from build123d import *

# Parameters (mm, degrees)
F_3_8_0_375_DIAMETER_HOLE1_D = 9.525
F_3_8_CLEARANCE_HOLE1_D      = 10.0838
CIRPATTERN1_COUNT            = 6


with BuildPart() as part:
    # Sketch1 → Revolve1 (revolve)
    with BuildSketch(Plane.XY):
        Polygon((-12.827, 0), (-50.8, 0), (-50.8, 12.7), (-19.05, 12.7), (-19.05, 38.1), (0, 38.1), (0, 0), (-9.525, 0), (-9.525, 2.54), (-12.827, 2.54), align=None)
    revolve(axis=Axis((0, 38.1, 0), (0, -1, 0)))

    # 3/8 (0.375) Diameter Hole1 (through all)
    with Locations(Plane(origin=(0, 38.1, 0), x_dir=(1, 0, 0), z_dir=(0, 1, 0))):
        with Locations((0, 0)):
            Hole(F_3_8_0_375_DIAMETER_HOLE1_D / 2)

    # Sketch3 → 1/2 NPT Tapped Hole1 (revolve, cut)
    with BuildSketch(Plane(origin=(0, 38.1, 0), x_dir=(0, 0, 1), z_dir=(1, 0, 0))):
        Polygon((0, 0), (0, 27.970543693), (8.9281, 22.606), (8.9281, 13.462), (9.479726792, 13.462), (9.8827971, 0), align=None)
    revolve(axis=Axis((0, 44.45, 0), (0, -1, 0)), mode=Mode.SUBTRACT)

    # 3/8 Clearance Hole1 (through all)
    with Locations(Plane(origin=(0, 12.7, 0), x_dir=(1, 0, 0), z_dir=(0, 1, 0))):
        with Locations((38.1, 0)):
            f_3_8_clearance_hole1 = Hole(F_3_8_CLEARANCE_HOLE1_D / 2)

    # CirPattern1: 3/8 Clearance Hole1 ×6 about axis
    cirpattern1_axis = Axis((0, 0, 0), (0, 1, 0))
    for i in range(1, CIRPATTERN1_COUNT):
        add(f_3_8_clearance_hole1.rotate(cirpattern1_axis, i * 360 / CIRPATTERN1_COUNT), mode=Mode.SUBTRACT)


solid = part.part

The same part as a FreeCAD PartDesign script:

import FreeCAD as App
import Part
import Sketcher

V = App.Vector
Q = App.Units.Quantity

doc = App.newDocument("Part")
params = doc.addObject("Spreadsheet::Sheet", "Params")
for row, (alias, value) in enumerate([
    ("sketch1_height", "1 in"),
    ("sketch1_height2", "0.1 in"),
    ("sketch1_height3", "1.5 in"),
    ("sketch1_width", "0.13 in"),
    ("sketch1_width2", "0.75 in"),
    ("revolution_angle", "360 deg"),
    ("sketch2_diameter", "0.375 in"),
    ("hole_diameter", "0.375 in"),
    ("sketch3_width", "0.36 in"),
    ("groove_angle", "360 deg"),
    ("sketch4_diameter", "0.397 in"),
    ("hole2_diameter", "0.397 in"),
], start=1):
    params.set(f"A{row}", alias)
    params.set(f"B{row}", "=" + value)
    params.setAlias(f"B{row}", alias)

body = doc.addObject("PartDesign::Body", "Body")

# Sketch on XY plane
sketch1 = doc.addObject("Sketcher::SketchObject", "Sketch")
body.addObject(sketch1)
sketch1.AttachmentSupport = (doc.XY_Plane, [""])
sketch1.MapMode = "FlatFace"
sketch1.addGeometry([
    Part.LineSegment(V(-50.8, 0, 0), V(-12.827, 0, 0)),  # 0
    Part.LineSegment(V(-12.827, 0, 0), V(-12.827, 2.54, 0)),  # 1
    Part.LineSegment(V(-12.827, 2.54, 0), V(-9.525, 2.54, 0)),  # 2
    Part.LineSegment(V(-9.525, 2.54, 0), V(-9.525, 0, 0)),  # 3
    Part.LineSegment(V(-9.525, 0, 0), V(0, 0, 0)),  # 4
    Part.LineSegment(V(0, 0, 0), V(0, 38.1, 0)),  # 5
    Part.LineSegment(V(0, 38.1, 0), V(-19.05, 38.1, 0)),  # 6
    Part.LineSegment(V(-19.05, 38.1, 0), V(-19.05, 12.7, 0)),  # 7
    Part.LineSegment(V(-19.05, 12.7, 0), V(-50.8, 12.7, 0)),  # 8
    Part.LineSegment(V(-50.8, 12.7, 0), V(-50.8, 0, 0)),  # 9
], False)
sketch1.addConstraint([
    Sketcher.Constraint("Coincident", 0, 2, 1, 1),
    Sketcher.Constraint("Coincident", 1, 2, 2, 1),
    Sketcher.Constraint("Coincident", 2, 2, 3, 1),
    Sketcher.Constraint("Coincident", 3, 2, 4, 1),
    Sketcher.Constraint("Coincident", 4, 2, 5, 1),
    Sketcher.Constraint("Coincident", 5, 2, 6, 1),
    Sketcher.Constraint("Coincident", 6, 2, 7, 1),
    Sketcher.Constraint("Coincident", 7, 2, 8, 1),
    Sketcher.Constraint("Coincident", 8, 2, 9, 1),
    Sketcher.Constraint("Coincident", 9, 2, 0, 1),
    Sketcher.Constraint("Horizontal", 0),
    Sketcher.Constraint("Vertical", 1),
    Sketcher.Constraint("Horizontal", 2),
    Sketcher.Constraint("Vertical", 3),
    Sketcher.Constraint("Horizontal", 4),
    Sketcher.Constraint("Vertical", 5),
    Sketcher.Constraint("Horizontal", 6),
    Sketcher.Constraint("Vertical", 7),
    Sketcher.Constraint("Horizontal", 8),
    Sketcher.Constraint("Vertical", 9),
    Sketcher.Constraint("Coincident", 4, 2, -1, 1),
    Sketcher.Constraint("PointOnObject", 0, 2, -1),
    Sketcher.Constraint("DistanceY", 7, 2, 7, 1, Q("1 in")),
    Sketcher.Constraint("DistanceY", 1, 1, 1, 2, Q("0.1 in")),
    Sketcher.Constraint("DistanceY", 5, 1, 5, 2, Q("1.5 in")),
    Sketcher.Constraint("DistanceX", 8, 2, -1, 1, Q("2 in")),
    Sketcher.Constraint("DistanceX", 2, 1, 2, 2, Q("0.13 in")),
    Sketcher.Constraint("DistanceX", 6, 2, 6, 1, Q("0.75 in")),
    Sketcher.Constraint("DistanceX", 0, 1, 0, 2, Q("1.495 in")),
])
sketch1.setExpression("Constraints[22]", "Params.sketch1_height")
sketch1.setExpression("Constraints[23]", "Params.sketch1_height2")
sketch1.setExpression("Constraints[24]", "Params.sketch1_height3")
sketch1.setExpression("Constraints[26]", "Params.sketch1_width")
sketch1.setExpression("Constraints[27]", "Params.sketch1_width2")
revolution = doc.addObject("PartDesign::Revolution", "Revolution")
body.addObject(revolution)
revolution.Profile = sketch1
revolution.ReferenceAxis = (sketch1, ["V_Axis"])
revolution.setExpression("Angle", "Params.revolution_angle")

# Sketch on XZ plane
sketch2 = doc.addObject("Sketcher::SketchObject", "Sketch001")
body.addObject(sketch2)
sketch2.AttachmentSupport = (doc.XZ_Plane, [""])
sketch2.MapMode = "FlatFace"
sketch2.AttachmentOffset = App.Placement(V(0, 0, -1.5 * 25.4), App.Rotation())
sketch2.addGeometry(Part.Circle(V(0, 0, 0), V(0, 0, 1), 4.7625), False)
sketch2.addConstraint([
    Sketcher.Constraint("Coincident", 0, 3, -1, 1),
    Sketcher.Constraint("Diameter", 0, Q("0.375 in")),
])
sketch2.setExpression("Constraints[1]", "Params.sketch2_diameter")
doc.recompute()
hole = doc.addObject("PartDesign::Hole", "Hole")
body.addObject(hole)
hole.Profile = sketch2
hole.ThreadType = "None"
hole.setExpression("Diameter", "Params.hole_diameter")
hole.DepthType = "ThroughAll"
hole.Reversed = True

# Sketch on YZ plane
sketch3 = doc.addObject("Sketcher::SketchObject", "Sketch002")
body.addObject(sketch3)
sketch3.AttachmentSupport = (doc.YZ_Plane, [""])
sketch3.MapMode = "FlatFace"
sketch3.addGeometry([
    Part.LineSegment(V(10.129456, 0, 0), V(38.1, 0, 0)),  # 0
    Part.LineSegment(V(38.1, 0, 0), V(38.1, 9.882797, 0)),  # 1
    Part.LineSegment(V(38.1, 9.882797, 0), V(24.638, 9.479727, 0)),  # 2
    Part.LineSegment(V(24.638, 9.479727, 0), V(24.638, 8.9281, 0)),  # 3
    Part.LineSegment(V(24.638, 8.9281, 0), V(15.494, 8.9281, 0)),  # 4
    Part.LineSegment(V(15.494, 8.9281, 0), V(10.129456, 0, 0)),  # 5
], False)
sketch3.addConstraint([
    Sketcher.Constraint("Coincident", 0, 2, 1, 1),
    Sketcher.Constraint("Coincident", 1, 2, 2, 1),
    Sketcher.Constraint("Coincident", 2, 2, 3, 1),
    Sketcher.Constraint("Coincident", 3, 2, 4, 1),
    Sketcher.Constraint("Coincident", 4, 2, 5, 1),
    Sketcher.Constraint("Coincident", 5, 2, 0, 1),
    Sketcher.Constraint("Horizontal", 0),
    Sketcher.Constraint("Vertical", 1),
    Sketcher.Constraint("Vertical", 3),
    Sketcher.Constraint("Horizontal", 4),
    Sketcher.Constraint("PointOnObject", 0, 2, -1),
    Sketcher.Constraint("Angle", 5, Q("-121 deg")),
    Sketcher.Constraint("DistanceX", 4, 2, 4, 1, Q("0.36 in")),
    Sketcher.Constraint("DistanceX", -1, 1, 0, 2, Q("1.5 in")),
    Sketcher.Constraint("DistanceX", -1, 1, 2, 2, Q("0.97 in")),
    Sketcher.Constraint("DistanceY", -1, 1, 3, 2, Q("0.3515 in")),
    Sketcher.Constraint("DistanceY", 1, 1, 1, 2, Q("9.882797 mm")),
    Sketcher.Constraint("DistanceY", 3, 2, 3, 1, Q("0.551627 mm")),
])
sketch3.setExpression("Constraints[12]", "Params.sketch3_width")
groove = doc.addObject("PartDesign::Groove", "Groove")
body.addObject(groove)
groove.Profile = sketch3
groove.ReferenceAxis = (sketch3, ["H_Axis"])
groove.setExpression("Angle", "Params.groove_angle")

# Sketch on XZ plane
sketch4 = doc.addObject("Sketcher::SketchObject", "Sketch003")
body.addObject(sketch4)
sketch4.AttachmentSupport = (doc.XZ_Plane, [""])
sketch4.MapMode = "FlatFace"
sketch4.AttachmentOffset = App.Placement(V(0, 0, -0.5 * 25.4), App.Rotation())
sketch4.addGeometry(Part.Circle(V(38.1, 0, 0), V(0, 0, 1), 5.0419), False)
sketch4.addConstraint([
    Sketcher.Constraint("PointOnObject", 0, 3, -1),
    Sketcher.Constraint("Diameter", 0, Q("0.397 in")),
    Sketcher.Constraint("DistanceX", -1, 1, 0, 3, Q("1.5 in")),
])
sketch4.setExpression("Constraints[1]", "Params.sketch4_diameter")
doc.recompute()
hole2 = doc.addObject("PartDesign::Hole", "Hole001")
body.addObject(hole2)
hole2.Profile = sketch4
hole2.ThreadType = "None"
hole2.setExpression("Diameter", "Params.hole2_diameter")
hole2.DepthType = "ThroughAll"
hole2.Reversed = True
doc.recompute()

polarpattern = doc.addObject("PartDesign::PolarPattern", "PolarPattern")
body.addObject(polarpattern)
polarpattern.Originals = [hole2]
polarpattern.Axis = (doc.Y_Axis, [""])
polarpattern.Angle = 360
polarpattern.Occurrences = 6
body.Tip = polarpattern

doc.recompute()
